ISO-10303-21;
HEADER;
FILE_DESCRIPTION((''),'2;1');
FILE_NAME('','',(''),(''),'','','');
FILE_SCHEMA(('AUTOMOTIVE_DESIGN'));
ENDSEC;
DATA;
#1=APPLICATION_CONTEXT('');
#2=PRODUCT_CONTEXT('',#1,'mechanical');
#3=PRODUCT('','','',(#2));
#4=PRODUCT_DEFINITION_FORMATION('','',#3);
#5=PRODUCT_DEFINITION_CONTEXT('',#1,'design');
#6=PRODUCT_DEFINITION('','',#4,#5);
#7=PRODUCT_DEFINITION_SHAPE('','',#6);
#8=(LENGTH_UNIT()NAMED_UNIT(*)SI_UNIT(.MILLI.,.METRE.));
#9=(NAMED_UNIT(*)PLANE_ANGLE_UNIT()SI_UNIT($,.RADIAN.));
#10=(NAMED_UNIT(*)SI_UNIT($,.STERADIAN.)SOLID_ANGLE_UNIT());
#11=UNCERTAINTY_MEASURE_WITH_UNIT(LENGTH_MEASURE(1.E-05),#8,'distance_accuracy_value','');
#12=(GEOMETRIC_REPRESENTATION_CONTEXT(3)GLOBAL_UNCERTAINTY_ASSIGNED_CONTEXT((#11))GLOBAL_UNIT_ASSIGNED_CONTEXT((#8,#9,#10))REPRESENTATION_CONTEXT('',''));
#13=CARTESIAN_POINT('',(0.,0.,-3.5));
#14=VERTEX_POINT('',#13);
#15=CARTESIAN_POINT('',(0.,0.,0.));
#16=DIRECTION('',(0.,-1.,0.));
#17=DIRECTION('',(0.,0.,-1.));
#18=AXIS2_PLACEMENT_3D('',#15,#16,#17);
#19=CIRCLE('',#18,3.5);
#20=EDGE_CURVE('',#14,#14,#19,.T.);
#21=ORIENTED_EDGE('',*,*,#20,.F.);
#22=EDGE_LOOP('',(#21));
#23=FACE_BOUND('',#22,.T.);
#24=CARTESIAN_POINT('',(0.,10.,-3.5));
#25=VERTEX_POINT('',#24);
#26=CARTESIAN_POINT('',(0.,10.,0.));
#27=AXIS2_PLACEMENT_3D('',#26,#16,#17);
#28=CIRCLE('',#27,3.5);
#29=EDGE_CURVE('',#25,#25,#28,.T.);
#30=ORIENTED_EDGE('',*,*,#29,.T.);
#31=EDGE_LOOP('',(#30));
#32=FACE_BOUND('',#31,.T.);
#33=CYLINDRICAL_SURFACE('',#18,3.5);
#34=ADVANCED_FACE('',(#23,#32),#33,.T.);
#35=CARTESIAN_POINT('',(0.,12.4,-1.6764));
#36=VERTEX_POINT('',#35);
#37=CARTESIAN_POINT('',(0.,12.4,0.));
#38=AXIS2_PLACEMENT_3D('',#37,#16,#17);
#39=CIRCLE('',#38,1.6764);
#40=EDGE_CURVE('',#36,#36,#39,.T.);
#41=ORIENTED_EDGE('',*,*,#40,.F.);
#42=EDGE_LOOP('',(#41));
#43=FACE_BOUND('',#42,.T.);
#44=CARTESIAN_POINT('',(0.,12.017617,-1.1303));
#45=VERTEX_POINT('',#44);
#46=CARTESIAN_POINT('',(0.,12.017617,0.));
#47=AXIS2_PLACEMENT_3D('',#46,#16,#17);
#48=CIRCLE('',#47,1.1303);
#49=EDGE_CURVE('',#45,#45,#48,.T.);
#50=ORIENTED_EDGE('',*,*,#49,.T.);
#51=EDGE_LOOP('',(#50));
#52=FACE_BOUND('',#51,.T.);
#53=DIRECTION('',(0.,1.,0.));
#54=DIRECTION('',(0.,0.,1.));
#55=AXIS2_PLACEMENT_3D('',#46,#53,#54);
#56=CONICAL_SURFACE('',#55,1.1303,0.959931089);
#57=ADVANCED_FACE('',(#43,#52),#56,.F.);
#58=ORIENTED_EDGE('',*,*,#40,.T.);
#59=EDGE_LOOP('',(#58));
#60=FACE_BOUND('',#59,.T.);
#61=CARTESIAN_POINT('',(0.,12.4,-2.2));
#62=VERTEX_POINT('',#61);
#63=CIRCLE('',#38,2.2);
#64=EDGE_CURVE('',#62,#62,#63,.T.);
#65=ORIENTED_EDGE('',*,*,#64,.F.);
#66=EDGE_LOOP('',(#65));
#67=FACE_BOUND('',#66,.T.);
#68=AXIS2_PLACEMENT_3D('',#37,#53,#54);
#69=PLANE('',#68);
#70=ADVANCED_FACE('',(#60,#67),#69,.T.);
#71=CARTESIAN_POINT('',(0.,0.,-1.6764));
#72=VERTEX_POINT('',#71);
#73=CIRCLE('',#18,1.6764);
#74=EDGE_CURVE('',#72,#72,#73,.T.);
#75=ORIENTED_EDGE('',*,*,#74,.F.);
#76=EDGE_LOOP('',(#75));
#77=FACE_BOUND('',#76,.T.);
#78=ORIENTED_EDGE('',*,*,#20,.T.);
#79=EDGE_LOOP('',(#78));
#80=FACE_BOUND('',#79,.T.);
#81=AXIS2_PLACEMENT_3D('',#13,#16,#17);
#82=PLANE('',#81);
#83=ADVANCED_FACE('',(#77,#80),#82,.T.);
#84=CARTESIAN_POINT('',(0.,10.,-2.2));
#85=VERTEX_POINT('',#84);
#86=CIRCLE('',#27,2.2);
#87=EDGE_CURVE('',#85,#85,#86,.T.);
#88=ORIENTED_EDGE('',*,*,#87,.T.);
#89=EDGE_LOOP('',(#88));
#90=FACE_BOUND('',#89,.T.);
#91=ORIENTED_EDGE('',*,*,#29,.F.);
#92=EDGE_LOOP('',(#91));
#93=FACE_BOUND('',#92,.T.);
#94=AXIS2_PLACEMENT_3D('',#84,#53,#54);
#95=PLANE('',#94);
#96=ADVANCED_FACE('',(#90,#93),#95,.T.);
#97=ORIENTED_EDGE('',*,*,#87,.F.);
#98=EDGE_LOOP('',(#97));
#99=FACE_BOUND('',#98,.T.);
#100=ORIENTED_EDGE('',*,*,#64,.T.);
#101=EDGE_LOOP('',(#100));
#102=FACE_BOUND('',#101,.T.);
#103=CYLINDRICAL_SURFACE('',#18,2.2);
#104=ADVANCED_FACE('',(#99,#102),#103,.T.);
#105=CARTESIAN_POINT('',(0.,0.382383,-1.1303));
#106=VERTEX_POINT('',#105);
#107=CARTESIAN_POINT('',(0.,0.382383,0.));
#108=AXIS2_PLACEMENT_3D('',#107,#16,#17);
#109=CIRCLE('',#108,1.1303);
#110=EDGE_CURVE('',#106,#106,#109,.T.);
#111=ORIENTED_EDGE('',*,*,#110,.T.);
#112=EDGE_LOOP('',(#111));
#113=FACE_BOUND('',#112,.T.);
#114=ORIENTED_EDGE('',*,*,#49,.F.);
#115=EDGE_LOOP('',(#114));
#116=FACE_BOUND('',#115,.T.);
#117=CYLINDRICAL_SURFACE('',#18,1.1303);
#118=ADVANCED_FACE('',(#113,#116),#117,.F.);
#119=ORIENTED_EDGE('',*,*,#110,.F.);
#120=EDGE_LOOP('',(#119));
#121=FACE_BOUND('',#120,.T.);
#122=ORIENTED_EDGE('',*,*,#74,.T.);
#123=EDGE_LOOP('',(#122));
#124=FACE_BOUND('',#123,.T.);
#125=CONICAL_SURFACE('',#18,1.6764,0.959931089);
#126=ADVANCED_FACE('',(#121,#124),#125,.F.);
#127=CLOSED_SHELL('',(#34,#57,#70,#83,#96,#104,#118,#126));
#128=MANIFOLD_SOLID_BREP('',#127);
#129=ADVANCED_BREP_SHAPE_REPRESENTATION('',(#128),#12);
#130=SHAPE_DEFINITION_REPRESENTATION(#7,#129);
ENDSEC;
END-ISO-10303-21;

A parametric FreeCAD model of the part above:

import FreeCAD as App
import Part
import Sketcher

V = App.Vector
Q = App.Units.Quantity


def add_polygon(sketch, points):
    """Adds a closed chain of lines whose ends are joined by coincident constraints."""
    first, n = sketch.GeometryCount, len(points)
    for a, b in zip(points, points[1:] + points[:1]):
        sketch.addGeometry(Part.LineSegment(App.Vector(*a, 0), App.Vector(*b, 0)), False)
    for i in range(n):
        sketch.addConstraint(Sketcher.Constraint("Coincident", first + i, 2, first + (i + 1) % n, 1))

doc = App.newDocument("Part")
body = doc.addObject("PartDesign::Body", "Body")

# Sketch on YZ plane
sketch1 = body.newObject("Sketcher::SketchObject", "Sketch")
sketch1.AttachmentSupport = (doc.getObject("YZ_Plane"), [""])
sketch1.MapMode = "FlatFace"
add_polygon(sketch1, [(12.4, 0), (0, 0), (0, -3.5), (10, -3.5), (10, -2.2), (12.4, -2.2)])  # lines 0-5
sketch1.addConstraint([
    Sketcher.Constraint("Horizontal", 0),
    Sketcher.Constraint("Vertical", 1),
    Sketcher.Constraint("Horizontal", 2),
    Sketcher.Constraint("Vertical", 3),
    Sketcher.Constraint("Horizontal", 4),
    Sketcher.Constraint("Vertical", 5),
    Sketcher.Constraint("Coincident", 0, 2, -1, 1),
    Sketcher.Constraint("DistanceX", 2, 1, 2, 2, Q("10 mm")),
    Sketcher.Constraint("DistanceX", 0, 2, 0, 1, Q("12.4 mm")),
    Sketcher.Constraint("DistanceY", 1, 2, 1, 1, Q("3.5 mm")),
    Sketcher.Constraint("DistanceY", 3, 1, 3, 2, Q("1.3 mm")),
])
revolution = body.newObject("PartDesign::Revolution", "Revolution")
revolution.Profile = sketch1
revolution.ReferenceAxis = (sketch1, ["H_Axis"])
revolution.Angle = 360

# Sketch on YZ plane
sketch2 = body.newObject("Sketcher::SketchObject", "Sketch001")
sketch2.AttachmentSupport = (doc.getObject("YZ_Plane"), [""])
sketch2.MapMode = "FlatFace"
add_polygon(sketch2, [(12.4, 0), (0, 0), (0, -1.7), (0.4, -1.1), (12, -1.1), (12.4, -1.7)])  # lines 0-5
sketch2.addConstraint([
    Sketcher.Constraint("Horizontal", 0),
    Sketcher.Constraint("Vertical", 1),
    Sketcher.Constraint("Horizontal", 3),
    Sketcher.Constraint("Vertical", 5),
    Sketcher.Constraint("Coincident", 0, 2, -1, 1),
    Sketcher.Constraint("Horizontal", 1, 2, 4, 2),
    Sketcher.Constraint("Equal", 2, 4),
    Sketcher.Constraint("Angle", 2, Q("55 deg")),
    Sketcher.Constraint("DistanceX", 0, 2, 0, 1, Q("12.4 mm")),
    Sketcher.Constraint("DistanceY", 1, 2, 1, 1, Q("1.6764 mm")),
    Sketcher.Constraint("DistanceY", 2, 2, -1, 1, Q("1.1303 mm")),
])
groove = body.newObject("PartDesign::Groove", "Groove")
groove.Profile = sketch2
groove.ReferenceAxis = (sketch2, ["H_Axis"])
groove.Angle = 360

doc.recompute()
